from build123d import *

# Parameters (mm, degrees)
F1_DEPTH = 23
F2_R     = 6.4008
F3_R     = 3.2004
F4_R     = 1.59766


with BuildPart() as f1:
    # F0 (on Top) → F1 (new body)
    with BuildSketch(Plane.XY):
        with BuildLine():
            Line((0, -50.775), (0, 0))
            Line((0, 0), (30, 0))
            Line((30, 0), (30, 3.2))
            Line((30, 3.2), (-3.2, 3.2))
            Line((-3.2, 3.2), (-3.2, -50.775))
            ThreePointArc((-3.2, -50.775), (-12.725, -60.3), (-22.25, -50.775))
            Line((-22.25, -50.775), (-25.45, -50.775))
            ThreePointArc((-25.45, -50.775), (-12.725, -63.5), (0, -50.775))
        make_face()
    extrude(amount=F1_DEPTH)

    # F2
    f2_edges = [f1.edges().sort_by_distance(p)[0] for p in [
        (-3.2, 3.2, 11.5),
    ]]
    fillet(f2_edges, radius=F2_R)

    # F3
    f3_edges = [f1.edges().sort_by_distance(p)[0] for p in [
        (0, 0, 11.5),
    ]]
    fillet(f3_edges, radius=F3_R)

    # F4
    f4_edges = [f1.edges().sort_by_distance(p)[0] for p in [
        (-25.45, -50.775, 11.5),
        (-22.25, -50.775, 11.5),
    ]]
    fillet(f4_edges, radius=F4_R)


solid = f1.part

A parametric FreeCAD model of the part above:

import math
import FreeCAD as App
import Part
import Sketcher

V = App.Vector
Q = App.Units.Quantity


def edges_at(feature, points):
    """Names of the edges that pass closest to the given points."""
    edges = feature.Shape.Edges
    near = lambda p: min(range(len(edges)), key=lambda i: edges[i].distToShape(Part.Vertex(*p))[0])
    return sorted({f"Edge{near(p) + 1}" for p in points})

doc = App.newDocument("Part")
body = doc.addObject("PartDesign::Body", "Body")

# Sketch on XY plane
sketch1 = body.newObject("Sketcher::SketchObject", "Sketch")
sketch1.AttachmentSupport = (doc.getObject("XY_Plane"), [""])
sketch1.MapMode = "FlatFace"
sketch1.addGeometry(Part.LineSegment(V(0, -50.8, 0), V(0, 0, 0)), False)
sketch1.addGeometry(Part.LineSegment(V(0, 0, 0), V(30, 0, 0)), False)
sketch1.addGeometry(Part.LineSegment(V(30, 0, 0), V(30, 3.2, 0)), False)
sketch1.addGeometry(Part.LineSegment(V(30, 3.2, 0), V(-3.2, 3.2, 0)), False)
sketch1.addGeometry(Part.LineSegment(V(-3.2, 3.2, 0), V(-3.2, -50.8, 0)), False)
sketch1.addGeometry(Part.ArcOfCircle(Part.Circle(V(-12.7, -50.8, 0), V(0, 0, 1), 9.5), math.radians(180), math.radians(360)), False)
sketch1.addGeometry(Part.LineSegment(V(-22.2, -50.8, 0), V(-25.4, -50.8, 0)), False)
sketch1.addGeometry(Part.ArcOfCircle(Part.Circle(V(-12.7, -50.8, 0), V(0, 0, 1), 12.7), math.radians(180), math.radians(360)), False)
sketch1.addConstraint(Sketcher.Constraint("Coincident", 0, 2, 1, 1))
sketch1.addConstraint(Sketcher.Constraint("Coincident", 1, 2, 2, 1))
sketch1.addConstraint(Sketcher.Constraint("Coincident", 2, 2, 3, 1))
sketch1.addConstraint(Sketcher.Constraint("Coincident", 3, 2, 4, 1))
sketch1.addConstraint(Sketcher.Constraint("Tangent", 4, 2, 5, 2))
sketch1.addConstraint(Sketcher.Constraint("Coincident", 5, 1, 6, 1))
sketch1.addConstraint(Sketcher.Constraint("Coincident", 6, 2, 7, 1))
sketch1.addConstraint(Sketcher.Constraint("Tangent", 7, 2, 0, 1))
sketch1.addConstraint(Sketcher.Constraint("Vertical", 0))
sketch1.addConstraint(Sketcher.Constraint("Horizontal", 1))
sketch1.addConstraint(Sketcher.Constraint("Vertical", 2))
sketch1.addConstraint(Sketcher.Constraint("Horizontal", 3))
sketch1.addConstraint(Sketcher.Constraint("Vertical", 4))
sketch1.addConstraint(Sketcher.Constraint("Horizontal", 6))
sketch1.addConstraint(Sketcher.Constraint("Coincident", 0, 2, -1, 1))
sketch1.addConstraint(Sketcher.Constraint("Coincident", 7, 3, 5, 3))
sketch1.addConstraint(Sketcher.Constraint("Horizontal", 4, 2, 5, 1))
sketch1.addConstraint(Sketcher.Constraint("Equal", 6, 2))
sketch1.addConstraint(Sketcher.Constraint("DistanceX", 1, 1, 1, 2, Q("30 mm")))
sketch1.addConstraint(Sketcher.Constraint("DistanceX", 3, 2, 3, 1, Q("33.2 mm")))
sketch1.addConstraint(Sketcher.Constraint("Radius", 5, Q("9.525 mm")))
sketch1.addConstraint(Sketcher.Constraint("DistanceY", 0, 1, 0, 2, Q("50.775 mm")))
pad1 = body.newObject("PartDesign::Pad", "Pad")
pad1.Profile = sketch1
pad1.Length = 23
doc.recompute()

fillet = body.newObject("PartDesign::Fillet", "Fillet")
fillet.Base = (pad1, edges_at(pad1, [(-3.2, 3.2, 11.5)]))
fillet.Radius = 6.4008
doc.recompute()

fillet2 = body.newObject("PartDesign::Fillet", "Fillet001")
fillet2.Base = (fillet, edges_at(fillet, [(0, 0, 11.5)]))
fillet2.Radius = 3.2004
doc.recompute()

fillet3 = body.newObject("PartDesign::Fillet", "Fillet002")
fillet3.Base = (fillet2, edges_at(fillet2, [(-25.45, -50.775, 11.5), (-22.25, -50.775, 11.5)]))
fillet3.Radius = 1.59766

doc.recompute()
